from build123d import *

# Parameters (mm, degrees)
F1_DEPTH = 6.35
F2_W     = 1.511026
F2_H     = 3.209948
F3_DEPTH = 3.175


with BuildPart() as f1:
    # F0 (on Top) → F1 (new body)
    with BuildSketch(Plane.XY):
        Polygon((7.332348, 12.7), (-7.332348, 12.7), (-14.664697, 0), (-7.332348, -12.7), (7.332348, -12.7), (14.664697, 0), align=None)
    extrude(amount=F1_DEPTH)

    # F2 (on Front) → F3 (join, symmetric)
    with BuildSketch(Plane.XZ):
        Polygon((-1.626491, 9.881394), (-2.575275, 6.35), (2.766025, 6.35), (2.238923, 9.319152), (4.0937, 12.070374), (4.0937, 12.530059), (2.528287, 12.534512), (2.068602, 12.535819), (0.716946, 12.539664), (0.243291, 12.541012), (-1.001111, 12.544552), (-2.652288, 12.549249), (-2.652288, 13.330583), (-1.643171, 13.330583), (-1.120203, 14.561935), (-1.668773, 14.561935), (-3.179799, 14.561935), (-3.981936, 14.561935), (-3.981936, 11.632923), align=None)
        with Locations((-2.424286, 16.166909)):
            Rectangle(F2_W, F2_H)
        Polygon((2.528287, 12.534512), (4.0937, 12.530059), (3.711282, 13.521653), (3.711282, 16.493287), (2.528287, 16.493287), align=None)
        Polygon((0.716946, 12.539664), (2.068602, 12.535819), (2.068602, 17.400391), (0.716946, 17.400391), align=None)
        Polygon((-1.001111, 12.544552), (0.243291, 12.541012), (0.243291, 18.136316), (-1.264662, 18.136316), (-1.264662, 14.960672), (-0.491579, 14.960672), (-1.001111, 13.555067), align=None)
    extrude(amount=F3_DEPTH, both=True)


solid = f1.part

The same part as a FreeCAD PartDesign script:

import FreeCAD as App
import Part
import Sketcher
Q = App.Units.Quantity

doc = App.newDocument("Part")
body = doc.addObject("PartDesign::Body", "Body")

# Sketch on XY plane
sketch1 = body.newObject("Sketcher::SketchObject", "Sketch")
sketch1.AttachmentSupport = (doc.getObject("XY_Plane"), [""])
sketch1.MapMode = "FlatFace"
sketch1.addGeometry(Part.LineSegment(App.Vector(7, 13, 0), App.Vector(-7, 13, 0)), False)
sketch1.addGeometry(Part.LineSegment(App.Vector(-7, 13, 0), App.Vector(-15, 0, 0)), False)
sketch1.addGeometry(Part.LineSegment(App.Vector(-15, 0, 0), App.Vector(-7, -13, 0)), False)
sketch1.addGeometry(Part.LineSegment(App.Vector(-7, -13, 0), App.Vector(7, -13, 0)), False)
sketch1.addGeometry(Part.LineSegment(App.Vector(7, -13, 0), App.Vector(15, 0, 0)), False)
sketch1.addGeometry(Part.LineSegment(App.Vector(15, 0, 0), App.Vector(7, 13, 0)), False)
sketch1.addConstraint(Sketcher.Constraint("Coincident", 0, 2, 1, 1))
sketch1.addConstraint(Sketcher.Constraint("Coincident", 1, 2, 2, 1))
sketch1.addConstraint(Sketcher.Constraint("Coincident", 2, 2, 3, 1))
sketch1.addConstraint(Sketcher.Constraint("Coincident", 3, 2, 4, 1))
sketch1.addConstraint(Sketcher.Constraint("Coincident", 4, 2, 5, 1))
sketch1.addConstraint(Sketcher.Constraint("Coincident", 5, 2, 0, 1))
sketch1.addConstraint(Sketcher.Constraint("Horizontal", 0))
sketch1.addConstraint(Sketcher.Constraint("Horizontal", 3))
sketch1.addConstraint(Sketcher.Constraint("Symmetric", 0, 2, 3, 2, -1, 1))
sketch1.addConstraint(Sketcher.Constraint("Symmetric", 1, 2, 4, 2, -1, 1))
sketch1.addConstraint(Sketcher.Constraint("PointOnObject", 1, 2, -1))
sketch1.addConstraint(Sketcher.Constraint("Parallel", 2, 5))
sketch1.addConstraint(Sketcher.Constraint("Vertical", 0, 2, 2, 2))
sketch1.addConstraint(Sketcher.Constraint("Angle", 1, Q("-120.000002 deg")))
sketch1.addConstraint(Sketcher.Constraint("DistanceY", 2, 2, 0, 2, Q("1 in")))
sketch1.addConstraint(Sketcher.Constraint("DistanceX", 0, 2, 0, 1, 14.664696))
pad1 = body.newObject("PartDesign::Pad", "Pad")
pad1.Profile = sketch1
pad1.Length = Q("0.25 in")

# Sketch on XZ plane
sketch2 = body.newObject("Sketcher::SketchObject", "Sketch001")
sketch2.AttachmentSupport = (doc.getObject("XZ_Plane"), [""])
sketch2.MapMode = "FlatFace"
sketch2.addGeometry(Part.LineSegment(App.Vector(-1.63, 9.88, 0), App.Vector(-2.58, 6.35, 0)), False)
sketch2.addGeometry(Part.LineSegment(App.Vector(-2.58, 6.35, 0), App.Vector(2.77, 6.35, 0)), False)
sketch2.addGeometry(Part.LineSegment(App.Vector(2.77, 6.35, 0), App.Vector(2.24, 9.32, 0)), False)
sketch2.addGeometry(Part.LineSegment(App.Vector(2.24, 9.32, 0), App.Vector(4.09, 12.07, 0)), False)
sketch2.addGeometry(Part.LineSegment(App.Vector(4.09, 12.07, 0), App.Vector(4.09, 12.53, 0)), False)
sketch2.addGeometry(Part.LineSegment(App.Vector(4.09, 12.53, 0), App.Vector(3.71, 13.52, 0)), False)
sketch2.addGeometry(Part.LineSegment(App.Vector(3.71, 13.52, 0), App.Vector(3.71, 16.49, 0)), False)
sketch2.addGeometry(Part.LineSegment(App.Vector(3.71, 16.49, 0), App.Vector(2.53, 16.49, 0)), False)
sketch2.addGeometry(Part.LineSegment(App.Vector(2.53, 16.49, 0), App.Vector(2.53, 12.53, 0)), False)
sketch2.addGeometry(Part.LineSegment(App.Vector(2.53, 12.53, 0), App.Vector(2.07, 12.54, 0)), False)
sketch2.addGeometry(Part.LineSegment(App.Vector(2.07, 12.54, 0), App.Vector(2.07, 17.4, 0)), False)
sketch2.addGeometry(Part.LineSegment(App.Vector(2.07, 17.4, 0), App.Vector(0.72, 17.4, 0)), False)
sketch2.addGeometry(Part.LineSegment(App.Vector(0.72, 17.4, 0), App.Vector(0.72, 12.54, 0)), False)
sketch2.addGeometry(Part.LineSegment(App.Vector(0.72, 12.54, 0), App.Vector(0.24, 12.54, 0)), False)
sketch2.addGeometry(Part.LineSegment(App.Vector(0.24, 12.54, 0), App.Vector(0.24, 18.14, 0)), False)
sketch2.addGeometry(Part.LineSegment(App.Vector(0.24, 18.14, 0), App.Vector(-1.26, 18.14, 0)), False)
sketch2.addGeometry(Part.LineSegment(App.Vector(-1.26, 18.14, 0), App.Vector(-1.26, 14.96, 0)), False)
sketch2.addGeometry(Part.LineSegment(App.Vector(-1.26, 14.96, 0), App.Vector(-0.49, 14.96, 0)), False)
sketch2.addGeometry(Part.LineSegment(App.Vector(-0.49, 14.96, 0), App.Vector(-1, 13.56, 0)), False)
sketch2.addGeometry(Part.LineSegment(App.Vector(-1, 13.56, 0), App.Vector(-1, 12.54, 0)), False)
sketch2.addGeometry(Part.LineSegment(App.Vector(-1, 12.54, 0), App.Vector(-2.65, 12.55, 0)), False)
sketch2.addGeometry(Part.LineSegment(App.Vector(-2.65, 12.55, 0), App.Vector(-2.65, 13.33, 0)), False)
sketch2.addGeometry(Part.LineSegment(App.Vector(-2.65, 13.33, 0), App.Vector(-1.64, 13.33, 0)), False)
sketch2.addGeometry(Part.LineSegment(App.Vector(-1.64, 13.33, 0), App.Vector(-1.12, 14.56, 0)), False)
sketch2.addGeometry(Part.LineSegment(App.Vector(-1.12, 14.56, 0), App.Vector(-1.67, 14.56, 0)), False)
sketch2.addGeometry(Part.LineSegment(App.Vector(-1.67, 14.56, 0), App.Vector(-1.67, 17.77, 0)), False)
sketch2.addGeometry(Part.LineSegment(App.Vector(-1.67, 17.77, 0), App.Vector(-3.18, 17.77, 0)), False)
sketch2.addGeometry(Part.LineSegment(App.Vector(-3.18, 17.77, 0), App.Vector(-3.18, 14.56, 0)), False)
sketch2.addGeometry(Part.LineSegment(App.Vector(-3.18, 14.56, 0), App.Vector(-3.98, 14.56, 0)), False)
sketch2.addGeometry(Part.LineSegment(App.Vector(-3.98, 14.56, 0), App.Vector(-3.98, 11.63, 0)), False)
sketch2.addGeometry(Part.LineSegment(App.Vector(-3.98, 11.63, 0), App.Vector(-1.63, 9.88, 0)), False)
sketch2.addConstraint(Sketcher.Constraint("Coincident", 0, 2, 1, 1))
sketch2.addConstraint(Sketcher.Constraint("Coincident", 1, 2, 2, 1))
sketch2.addConstraint(Sketcher.Constraint("Coincident", 2, 2, 3, 1))
sketch2.addConstraint(Sketcher.Constraint("Coincident", 3, 2, 4, 1))
sketch2.addConstraint(Sketcher.Constraint("Coincident", 4, 2, 5, 1))
sketch2.addConstraint(Sketcher.Constraint("Coincident", 5, 2, 6, 1))
sketch2.addConstraint(Sketcher.Constraint("Coincident", 6, 2, 7, 1))
sketch2.addConstraint(Sketcher.Constraint("Coincident", 7, 2, 8, 1))
sketch2.addConstraint(Sketcher.Constraint("Coincident", 8, 2, 9, 1))
sketch2.addConstraint(Sketcher.Constraint("Coincident", 9, 2, 10, 1))
sketch2.addConstraint(Sketcher.Constraint("Coincident", 10, 2, 11, 1))
sketch2.addConstraint(Sketcher.Constraint("Coincident", 11, 2, 12, 1))
sketch2.addConstraint(Sketcher.Constraint("Coincident", 12, 2, 13, 1))
sketch2.addConstraint(Sketcher.Constraint("Coincident", 13, 2, 14, 1))
sketch2.addConstraint(Sketcher.Constraint("Coincident", 14, 2, 15, 1))
sketch2.addConstraint(Sketcher.Constraint("Coincident", 15, 2, 16, 1))
sketch2.addConstraint(Sketcher.Constraint("Coincident", 16, 2, 17, 1))
sketch2.addConstraint(Sketcher.Constraint("Coincident", 17, 2, 18, 1))
sketch2.addConstraint(Sketcher.Constraint("Coincident", 18, 2, 19, 1))
sketch2.addConstraint(Sketcher.Constraint("Coincident", 19, 2, 20, 1))
sketch2.addConstraint(Sketcher.Constraint("Coincident", 20, 2, 21, 1))
sketch2.addConstraint(Sketcher.Constraint("Coincident", 21, 2, 22, 1))
sketch2.addConstraint(Sketcher.Constraint("Coincident", 22, 2, 23, 1))
sketch2.addConstraint(Sketcher.Constraint("Coincident", 23, 2, 24, 1))
sketch2.addConstraint(Sketcher.Constraint("Coincident", 24, 2, 25, 1))
sketch2.addConstraint(Sketcher.Constraint("Coincident", 25, 2, 26, 1))
sketch2.addConstraint(Sketcher.Constraint("Coincident", 26, 2, 27, 1))
sketch2.addConstraint(Sketcher.Constraint("Coincident", 27, 2, 28, 1))
sketch2.addConstraint(Sketcher.Constraint("Coincident", 28, 2, 29, 1))
sketch2.addConstraint(Sketcher.Constraint("Coincident", 29, 2, 30, 1))
sketch2.addConstraint(Sketcher.Constraint("Coincident", 30, 2, 0, 1))
sketch2.addConstraint(Sketcher.Constraint("Horizontal", 1))
sketch2.addConstraint(Sketcher.Constraint("Vertical", 4))
sketch2.addConstraint(Sketcher.Constraint("Vertical", 6))
sketch2.addConstraint(Sketcher.Constraint("Horizontal", 7))
sketch2.addConstraint(Sketcher.Constraint("Vertical", 8))
sketch2.addConstraint(Sketcher.Constraint("Vertical", 10))
sketch2.addConstraint(Sketcher.Constraint("Horizontal", 11))
sketch2.addConstraint(Sketcher.Constraint("Vertical", 12))
sketch2.addConstraint(Sketcher.Constraint("Vertical", 14))
sketch2.addConstraint(Sketcher.Constraint("Horizontal", 15))
sketch2.addConstraint(Sketcher.Constraint("Vertical", 16))
sketch2.addConstraint(Sketcher.Constraint("Horizontal", 17))
sketch2.addConstraint(Sketcher.Constraint("Vertical", 19))
sketch2.addConstraint(Sketcher.Constraint("Vertical", 21))
sketch2.addConstraint(Sketcher.Constraint("Horizontal", 22))
sketch2.addConstraint(Sketcher.Constraint("Horizontal", 24))
sketch2.addConstraint(Sketcher.Constraint("Vertical", 25))
sketch2.addConstraint(Sketcher.Constraint("Horizontal", 26))
sketch2.addConstraint(Sketcher.Constraint("Vertical", 27))
sketch2.addConstraint(Sketcher.Constraint("Horizontal", 28))
sketch2.addConstraint(Sketcher.Constraint("Vertical", 29))
sketch2.addConstraint(Sketcher.Constraint("Parallel", 13, 20))
sketch2.addConstraint(Sketcher.Constraint("Horizontal", 24, 2, 27, 2))
sketch2.addConstraint(Sketcher.Constraint("DistanceY", -1, 1, 0, 2, Q("0.25 in")))
sketch2.addConstraint(Sketcher.Constraint("DistanceX", 1, 1, 1, 2, 5.3413))
sketch2.addConstraint(Sketcher.Constraint("Distance", 30, 2.935298))
sketch2.addConstraint(Sketcher.Constraint("DistanceX", 24, 2, 24, 1, 0.54857))
sketch2.addConstraint(Sketcher.Constraint("DistanceY", 10, 1, 10, 2, 4.864572))
sketch2.addConstraint(Sketcher.Constraint("DistanceX", -1, 1, 3, 2, 4.0937))
sketch2.addConstraint(Sketcher.Constraint("DistanceX", -1, 1, 9, 2, 2.068602))
sketch2.addConstraint(Sketcher.Constraint("DistanceX", 26, 2, -1, 1, 3.179799))
sketch2.addConstraint(Sketcher.Constraint("DistanceX", 2, 2, 1, 2, 0.527102))
sketch2.addConstraint(Sketcher.Constraint("DistanceY", 2, 2, 5, 2, 4.202501))
sketch2.addConstraint(Sketcher.Constraint("DistanceY", 8, 2, 13, 2, 0.0065))
sketch2.addConstraint(Sketcher.Constraint("Distance", 0, 3.656629))
sketch2.addConstraint(Sketcher.Constraint("Distance", 5, 1.06278))
sketch2.addConstraint(Sketcher.Constraint("Distance", 18, 1.495108))
sketch2.addConstraint(Sketcher.Constraint("DistanceX", 7, 2, 7, 1, 1.182995))
sketch2.addConstraint(Sketcher.Constraint("DistanceX", 11, 2, 11, 1, 1.351656))
sketch2.addConstraint(Sketcher.Constraint("DistanceX", 15, 2, 15, 1, 1.507953))
sketch2.addConstraint(Sketcher.Constraint("DistanceX", 17, 1, 17, 2, 0.773083))
sketch2.addConstraint(Sketcher.Constraint("DistanceX", 22, 1, 22, 2, 1.009117))
sketch2.addConstraint(Sketcher.Constraint("DistanceX", 26, 2, 26, 1, 1.511026))
sketch2.addConstraint(Sketcher.Constraint("DistanceX", 28, 2, 28, 1, 0.802137))
sketch2.addConstraint(Sketcher.Constraint("DistanceY", 4, 1, 4, 2, 0.459685))
sketch2.addConstraint(Sketcher.Constraint("DistanceY", 6, 1, 6, 2, 2.971634))
sketch2.addConstraint(Sketcher.Constraint("DistanceY", 8, 2, 8, 1, 3.958775))
sketch2.addConstraint(Sketcher.Constraint("DistanceY", 12, 2, 12, 1, 4.860727))
sketch2.addConstraint(Sketcher.Constraint("DistanceY", 14, 1, 14, 2, 5.595304))
sketch2.addConstraint(Sketcher.Constraint("DistanceY", 16, 2, 16, 1, 3.175644))
sketch2.addConstraint(Sketcher.Constraint("DistanceY", 19, 2, 19, 1, 1.010515))
sketch2.addConstraint(Sketcher.Constraint("DistanceY", 21, 1, 21, 2, 0.781334))
sketch2.addConstraint(Sketcher.Constraint("DistanceY", 25, 1, 25, 2, 3.209948))
sketch2.addConstraint(Sketcher.Constraint("DistanceY", 29, 2, 29, 1, 2.929012))
sketch2.addConstraint(Sketcher.Constraint("DistanceY", -1, 1, 4, 2, 12.530059))
sketch2.addConstraint(Sketcher.Constraint("DistanceY", -1, 1, 9, 2, 12.535819))
sketch2.addConstraint(Sketcher.Constraint("DistanceX", -1, 1, 13, 2, 0.243291))
sketch2.addConstraint(Sketcher.Constraint("DistanceX", 18, 2, -1, 1, 1.001111))
sketch2.addConstraint(Sketcher.Constraint("DistanceX", 20, 2, -1, 1, 2.652288))
sketch2.addConstraint(Sketcher.Constraint("DistanceY", -1, 1, 20, 2, 12.549249))
sketch2.addConstraint(Sketcher.Constraint("DistanceX", 30, 2, -1, 1, 1.626491))
sketch2.addConstraint(Sketcher.Constraint("DistanceX", 2, 2, 5, 2, 1.472359))
pad2 = body.newObject("PartDesign::Pad", "Pad001")
pad2.Profile = sketch2
pad2.Length = Q("0.25 in")
pad2.Midplane = True

doc.recompute()
